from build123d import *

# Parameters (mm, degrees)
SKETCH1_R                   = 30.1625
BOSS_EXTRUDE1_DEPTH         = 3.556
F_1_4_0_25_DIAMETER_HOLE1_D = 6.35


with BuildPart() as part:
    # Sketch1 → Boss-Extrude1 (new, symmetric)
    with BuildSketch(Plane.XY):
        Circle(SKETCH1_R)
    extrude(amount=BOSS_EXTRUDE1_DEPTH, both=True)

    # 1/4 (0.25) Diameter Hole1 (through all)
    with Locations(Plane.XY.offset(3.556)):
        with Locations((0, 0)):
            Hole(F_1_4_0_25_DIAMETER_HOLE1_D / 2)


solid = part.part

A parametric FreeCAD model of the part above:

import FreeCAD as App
import Part
import Sketcher

V = App.Vector
Q = App.Units.Quantity

doc = App.newDocument("Part")
body = doc.addObject("PartDesign::Body", "Body")

# Sketch on XY plane
sketch1 = body.newObject("Sketcher::SketchObject", "Sketch")
sketch1.AttachmentSupport = (doc.getObject("XY_Plane"), [""])
sketch1.MapMode = "FlatFace"
sketch1.addGeometry(Part.Circle(V(0, 0, 0), V(0, 0, 1), 30.1625), False)
sketch1.addConstraint(Sketcher.Constraint("Coincident", 0, 3, -1, 1))
sketch1.addConstraint(Sketcher.Constraint("Diameter", 0, Q("2.375 in")))
pad1 = body.newObject("PartDesign::Pad", "Pad")
pad1.Profile = sketch1
pad1.Length = Q("0.28 in")
pad1.Midplane = True

# Sketch on XY plane
sketch2 = body.newObject("Sketcher::SketchObject", "Sketch001")
sketch2.AttachmentSupport = (doc.getObject("XY_Plane"), [""])
sketch2.MapMode = "FlatFace"
sketch2.AttachmentOffset = App.Placement(V(0, 0, 0.14 * 25.4), App.Rotation())
sketch2.addGeometry(Part.Circle(V(0, 0, 0), V(0, 0, 1), 3.175), False)
sketch2.addConstraint(Sketcher.Constraint("Coincident", 0, 3, -1, 1))
sketch2.addConstraint(Sketcher.Constraint("Diameter", 0, Q("0.25 in")))
doc.recompute()
hole = body.newObject("PartDesign::Hole", "Hole")
hole.Profile = sketch2
hole.ThreadType = "None"
hole.Diameter = Q("0.25 in")
hole.DepthType = "ThroughAll"

doc.recompute()
